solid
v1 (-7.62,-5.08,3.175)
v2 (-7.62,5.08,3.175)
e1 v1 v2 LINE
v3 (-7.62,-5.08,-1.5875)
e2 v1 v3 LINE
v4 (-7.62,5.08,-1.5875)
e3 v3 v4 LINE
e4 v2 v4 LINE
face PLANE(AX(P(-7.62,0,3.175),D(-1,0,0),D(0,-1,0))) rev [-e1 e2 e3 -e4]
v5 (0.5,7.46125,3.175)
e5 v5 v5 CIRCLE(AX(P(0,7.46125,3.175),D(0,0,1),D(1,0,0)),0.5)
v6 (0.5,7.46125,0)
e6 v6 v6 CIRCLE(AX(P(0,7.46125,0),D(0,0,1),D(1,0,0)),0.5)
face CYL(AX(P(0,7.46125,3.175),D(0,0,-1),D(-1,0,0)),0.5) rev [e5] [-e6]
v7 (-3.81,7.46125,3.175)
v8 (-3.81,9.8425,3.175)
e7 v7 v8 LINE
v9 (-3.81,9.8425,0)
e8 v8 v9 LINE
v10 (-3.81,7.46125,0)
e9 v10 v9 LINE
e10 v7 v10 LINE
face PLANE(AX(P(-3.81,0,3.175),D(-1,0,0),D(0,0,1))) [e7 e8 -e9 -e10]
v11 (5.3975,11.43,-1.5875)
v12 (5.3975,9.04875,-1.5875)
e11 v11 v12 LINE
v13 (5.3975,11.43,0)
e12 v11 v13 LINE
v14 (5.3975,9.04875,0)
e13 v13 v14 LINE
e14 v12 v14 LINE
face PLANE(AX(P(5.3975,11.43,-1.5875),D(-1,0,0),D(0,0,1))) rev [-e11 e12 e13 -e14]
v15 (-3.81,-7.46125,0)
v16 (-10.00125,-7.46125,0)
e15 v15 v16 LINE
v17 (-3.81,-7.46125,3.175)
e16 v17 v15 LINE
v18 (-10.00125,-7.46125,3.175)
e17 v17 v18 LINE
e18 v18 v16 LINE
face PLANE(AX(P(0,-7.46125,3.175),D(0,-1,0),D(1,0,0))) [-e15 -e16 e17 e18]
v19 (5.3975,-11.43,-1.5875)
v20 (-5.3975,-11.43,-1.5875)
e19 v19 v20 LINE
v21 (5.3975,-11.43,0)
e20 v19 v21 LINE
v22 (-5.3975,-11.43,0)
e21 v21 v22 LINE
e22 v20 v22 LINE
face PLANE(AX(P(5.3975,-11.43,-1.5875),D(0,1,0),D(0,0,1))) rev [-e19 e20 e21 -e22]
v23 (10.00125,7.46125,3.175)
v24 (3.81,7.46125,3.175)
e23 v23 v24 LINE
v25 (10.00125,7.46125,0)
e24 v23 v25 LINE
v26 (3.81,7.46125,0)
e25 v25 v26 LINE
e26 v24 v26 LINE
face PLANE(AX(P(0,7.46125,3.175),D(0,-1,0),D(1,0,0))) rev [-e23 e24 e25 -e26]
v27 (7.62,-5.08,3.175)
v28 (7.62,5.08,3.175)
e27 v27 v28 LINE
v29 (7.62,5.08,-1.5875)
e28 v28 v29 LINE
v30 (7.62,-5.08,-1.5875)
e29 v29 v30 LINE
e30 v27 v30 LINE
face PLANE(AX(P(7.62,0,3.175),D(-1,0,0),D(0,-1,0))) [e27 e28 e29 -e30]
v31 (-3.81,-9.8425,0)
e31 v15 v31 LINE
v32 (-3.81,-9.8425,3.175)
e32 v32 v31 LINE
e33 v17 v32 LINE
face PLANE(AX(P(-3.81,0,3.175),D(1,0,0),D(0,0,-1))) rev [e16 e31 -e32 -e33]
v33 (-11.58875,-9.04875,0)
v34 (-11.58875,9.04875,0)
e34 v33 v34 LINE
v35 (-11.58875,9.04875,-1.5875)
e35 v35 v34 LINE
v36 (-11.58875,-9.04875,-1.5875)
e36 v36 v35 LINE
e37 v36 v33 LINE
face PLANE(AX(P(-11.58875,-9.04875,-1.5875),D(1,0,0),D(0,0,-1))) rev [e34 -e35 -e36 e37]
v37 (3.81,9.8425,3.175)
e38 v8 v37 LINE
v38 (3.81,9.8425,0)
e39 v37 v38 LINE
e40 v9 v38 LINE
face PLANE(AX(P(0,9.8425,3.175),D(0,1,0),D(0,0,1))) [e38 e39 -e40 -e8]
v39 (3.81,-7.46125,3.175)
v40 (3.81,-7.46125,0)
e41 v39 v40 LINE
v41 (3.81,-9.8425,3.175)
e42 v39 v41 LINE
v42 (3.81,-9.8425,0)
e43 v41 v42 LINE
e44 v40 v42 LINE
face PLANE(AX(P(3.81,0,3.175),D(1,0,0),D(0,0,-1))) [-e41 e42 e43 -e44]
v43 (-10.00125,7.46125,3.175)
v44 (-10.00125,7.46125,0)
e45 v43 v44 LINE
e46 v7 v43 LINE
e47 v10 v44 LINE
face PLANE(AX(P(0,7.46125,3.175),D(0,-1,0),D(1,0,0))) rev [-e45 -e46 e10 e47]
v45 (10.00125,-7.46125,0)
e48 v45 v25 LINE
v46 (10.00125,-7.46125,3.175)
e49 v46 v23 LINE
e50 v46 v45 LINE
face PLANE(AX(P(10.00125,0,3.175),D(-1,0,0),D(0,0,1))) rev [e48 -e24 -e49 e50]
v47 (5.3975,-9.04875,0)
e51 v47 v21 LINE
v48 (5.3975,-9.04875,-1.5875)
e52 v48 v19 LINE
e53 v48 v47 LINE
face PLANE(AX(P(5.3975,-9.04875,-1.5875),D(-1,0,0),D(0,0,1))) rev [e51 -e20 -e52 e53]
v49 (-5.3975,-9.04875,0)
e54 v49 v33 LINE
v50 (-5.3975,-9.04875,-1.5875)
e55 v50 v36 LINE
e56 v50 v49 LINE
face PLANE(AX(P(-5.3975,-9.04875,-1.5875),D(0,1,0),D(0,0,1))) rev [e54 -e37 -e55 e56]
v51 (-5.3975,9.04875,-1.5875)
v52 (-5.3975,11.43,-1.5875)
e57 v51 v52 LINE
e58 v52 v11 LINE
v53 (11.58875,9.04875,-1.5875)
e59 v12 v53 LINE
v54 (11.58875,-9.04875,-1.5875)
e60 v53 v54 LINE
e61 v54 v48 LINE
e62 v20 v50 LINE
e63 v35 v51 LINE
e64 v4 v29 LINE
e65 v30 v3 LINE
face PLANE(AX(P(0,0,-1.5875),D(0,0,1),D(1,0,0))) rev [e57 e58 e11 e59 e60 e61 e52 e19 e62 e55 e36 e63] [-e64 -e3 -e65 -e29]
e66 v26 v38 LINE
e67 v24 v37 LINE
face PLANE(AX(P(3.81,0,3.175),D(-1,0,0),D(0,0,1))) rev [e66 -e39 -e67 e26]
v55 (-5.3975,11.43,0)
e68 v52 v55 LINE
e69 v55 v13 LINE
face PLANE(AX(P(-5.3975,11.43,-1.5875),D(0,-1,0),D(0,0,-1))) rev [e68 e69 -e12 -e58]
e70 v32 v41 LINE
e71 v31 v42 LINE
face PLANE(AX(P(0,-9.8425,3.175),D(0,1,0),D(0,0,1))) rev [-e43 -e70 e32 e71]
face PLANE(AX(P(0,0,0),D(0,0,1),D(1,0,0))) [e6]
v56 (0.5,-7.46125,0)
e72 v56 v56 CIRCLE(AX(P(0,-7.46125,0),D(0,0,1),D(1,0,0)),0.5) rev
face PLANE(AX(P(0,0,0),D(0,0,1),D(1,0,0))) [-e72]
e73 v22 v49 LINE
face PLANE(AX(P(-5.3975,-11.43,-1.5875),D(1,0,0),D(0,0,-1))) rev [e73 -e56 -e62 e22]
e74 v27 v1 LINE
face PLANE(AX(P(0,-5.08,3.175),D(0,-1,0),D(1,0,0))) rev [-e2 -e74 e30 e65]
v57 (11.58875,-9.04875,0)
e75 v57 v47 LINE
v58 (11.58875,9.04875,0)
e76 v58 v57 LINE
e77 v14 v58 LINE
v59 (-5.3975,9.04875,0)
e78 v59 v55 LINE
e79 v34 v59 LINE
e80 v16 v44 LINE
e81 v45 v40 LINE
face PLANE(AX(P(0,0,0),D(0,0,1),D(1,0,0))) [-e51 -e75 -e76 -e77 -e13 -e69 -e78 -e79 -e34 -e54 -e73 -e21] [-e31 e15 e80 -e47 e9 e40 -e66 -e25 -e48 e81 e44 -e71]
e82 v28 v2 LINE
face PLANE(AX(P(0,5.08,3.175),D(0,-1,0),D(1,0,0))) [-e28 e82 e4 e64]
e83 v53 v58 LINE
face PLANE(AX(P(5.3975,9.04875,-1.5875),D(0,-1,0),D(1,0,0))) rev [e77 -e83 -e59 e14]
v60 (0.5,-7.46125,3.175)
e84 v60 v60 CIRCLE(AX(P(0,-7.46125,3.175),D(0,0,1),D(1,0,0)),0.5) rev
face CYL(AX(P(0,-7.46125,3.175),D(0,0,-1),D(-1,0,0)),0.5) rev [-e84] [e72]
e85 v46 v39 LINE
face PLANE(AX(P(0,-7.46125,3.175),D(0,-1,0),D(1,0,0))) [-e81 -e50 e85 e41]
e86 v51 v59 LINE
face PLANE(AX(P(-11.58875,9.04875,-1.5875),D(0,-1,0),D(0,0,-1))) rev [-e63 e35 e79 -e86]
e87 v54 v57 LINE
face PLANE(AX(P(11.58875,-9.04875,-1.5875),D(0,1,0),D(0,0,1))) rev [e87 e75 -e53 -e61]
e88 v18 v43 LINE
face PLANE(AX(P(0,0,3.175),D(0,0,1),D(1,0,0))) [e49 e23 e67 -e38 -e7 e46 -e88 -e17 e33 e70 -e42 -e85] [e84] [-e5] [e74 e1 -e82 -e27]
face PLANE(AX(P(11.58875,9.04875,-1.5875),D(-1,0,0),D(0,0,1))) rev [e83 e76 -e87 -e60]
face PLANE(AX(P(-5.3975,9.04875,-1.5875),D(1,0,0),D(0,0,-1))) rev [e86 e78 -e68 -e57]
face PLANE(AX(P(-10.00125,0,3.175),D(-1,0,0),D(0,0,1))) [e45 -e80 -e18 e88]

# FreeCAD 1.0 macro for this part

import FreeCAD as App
import Part
import Sketcher
Q = App.Units.Quantity

doc = App.newDocument("Part")
params = doc.addObject("Spreadsheet::Sheet", "Params")
for row, (alias, value) in enumerate([
    ("sketch1_width", "0.3 in"),
    ("sketch1_width2", "0.6 in"),
    ("sketch1_height", "0.4 in"),
    ("sketch1_height2", "0.09375 in"),
    ("pad1_length", "0.125 in"),
    ("sketch2_width", "0.6 in"),
    ("sketch2_height", "0.4 in"),
    ("sketch2_width2", "0.425 in"),
    ("sketch2_height2", "0.09375 in"),
    ("pad2_length", "0.0625 in"),
], start=1):
    params.set(f"A{row}", alias)
    params.set(f"B{row}", "=" + value)
    params.setAlias(f"B{row}", alias)

body = doc.addObject("PartDesign::Body", "Body")

# Sketch on XY plane
sketch1 = body.newObject("Sketcher::SketchObject", "Sketch")
sketch1.AttachmentSupport = (doc.getObject("XY_Plane"), [""])
sketch1.MapMode = "FlatFace"
sketch1.addGeometry([
    Part.LineSegment(App.Vector(3.8, -7.5, 0), App.Vector(10, -7.5, 0)),  # 0
    Part.LineSegment(App.Vector(10, -7.5, 0), App.Vector(10, 7.5, 0)),  # 1
    Part.LineSegment(App.Vector(10, 7.5, 0), App.Vector(3.8, 7.5, 0)),  # 2
    Part.LineSegment(App.Vector(3.8, 7.5, 0), App.Vector(3.8, 9.8, 0)),  # 3
    Part.LineSegment(App.Vector(3.8, 9.8, 0), App.Vector(-3.8, 9.8, 0)),  # 4
    Part.LineSegment(App.Vector(-3.8, 9.8, 0), App.Vector(-3.8, 7.5, 0)),  # 5
    Part.LineSegment(App.Vector(-3.8, 7.5, 0), App.Vector(-10, 7.5, 0)),  # 6
    Part.LineSegment(App.Vector(-10, 7.5, 0), App.Vector(-10, -7.5, 0)),  # 7
    Part.LineSegment(App.Vector(-10, -7.5, 0), App.Vector(-3.8, -7.5, 0)),  # 8
    Part.LineSegment(App.Vector(-3.8, -7.5, 0), App.Vector(-3.8, -9.8, 0)),  # 9
    Part.LineSegment(App.Vector(-3.8, -9.8, 0), App.Vector(3.8, -9.8, 0)),  # 10
    Part.LineSegment(App.Vector(3.8, -9.8, 0), App.Vector(3.8, -7.5, 0)),  # 11
    Part.Circle(App.Vector(0, -7.5, 0), App.Vector(0, 0, 1), 0.5),  # 12
    Part.LineSegment(App.Vector(7.6, -5.1, 0), App.Vector(-7.6, -5.1, 0)),  # 13
    Part.LineSegment(App.Vector(-7.6, -5.1, 0), App.Vector(-7.6, 5.1, 0)),  # 14
    Part.LineSegment(App.Vector(-7.6, 5.1, 0), App.Vector(7.6, 5.1, 0)),  # 15
    Part.LineSegment(App.Vector(7.6, 5.1, 0), App.Vector(7.6, -5.1, 0)),  # 16
    Part.Circle(App.Vector(0, 7.5, 0), App.Vector(0, 0, 1), 0.5),  # 17
], False)
sketch1.addConstraint([
    Sketcher.Constraint("Coincident", 0, 2, 1, 1),
    Sketcher.Constraint("Coincident", 1, 2, 2, 1),
    Sketcher.Constraint("Coincident", 2, 2, 3, 1),
    Sketcher.Constraint("Coincident", 3, 2, 4, 1),
    Sketcher.Constraint("Coincident", 4, 2, 5, 1),
    Sketcher.Constraint("Coincident", 5, 2, 6, 1),
    Sketcher.Constraint("Coincident", 6, 2, 7, 1),
    Sketcher.Constraint("Coincident", 7, 2, 8, 1),
    Sketcher.Constraint("Coincident", 8, 2, 9, 1),
    Sketcher.Constraint("Coincident", 9, 2, 10, 1),
    Sketcher.Constraint("Coincident", 10, 2, 11, 1),
    Sketcher.Constraint("Coincident", 11, 2, 0, 1),
    Sketcher.Constraint("Coincident", 13, 2, 14, 1),
    Sketcher.Constraint("Coincident", 14, 2, 15, 1),
    Sketcher.Constraint("Coincident", 15, 2, 16, 1),
    Sketcher.Constraint("Coincident", 16, 2, 13, 1),
    Sketcher.Constraint("Horizontal", 0),
    Sketcher.Constraint("Vertical", 1),
    Sketcher.Constraint("Horizontal", 2),
    Sketcher.Constraint("Vertical", 3),
    Sketcher.Constraint("Horizontal", 4),
    Sketcher.Constraint("Vertical", 5),
    Sketcher.Constraint("Horizontal", 6),
    Sketcher.Constraint("Vertical", 7),
    Sketcher.Constraint("Horizontal", 8),
    Sketcher.Constraint("Vertical", 9),
    Sketcher.Constraint("Horizontal", 10),
    Sketcher.Constraint("Vertical", 11),
    Sketcher.Constraint("Horizontal", 13),
    Sketcher.Constraint("Vertical", 14),
    Sketcher.Constraint("Horizontal", 15),
    Sketcher.Constraint("Vertical", 16),
    Sketcher.Constraint("Equal", 12, 17),
    Sketcher.Constraint("Symmetric", 12, 3, 17, 3, -1, 1),
    Sketcher.Constraint("Symmetric", 0, 2, 6, 2, -1, 1),
    Sketcher.Constraint("Symmetric", 2, 2, 8, 2, -1, 1),
    Sketcher.Constraint("Symmetric", 4, 2, 10, 2, -1, 1),
    Sketcher.Constraint("Symmetric", 13, 2, 15, 2, -1, 1),
    Sketcher.Constraint("Symmetric", 2, 2, 5, 2, -2),
    Sketcher.Constraint("PointOnObject", 12, 3, -2),
    Sketcher.Constraint("Horizontal", 12, 3, 0, 2),
    Sketcher.Constraint("DistanceX", 4, 2, 4, 1, Q("0.3 in")),
    Sketcher.Constraint("DistanceX", 13, 2, 13, 1, Q("0.6 in")),
    Sketcher.Constraint("DistanceY", 14, 1, 14, 2, Q("0.4 in")),
    Sketcher.Constraint("Diameter", 12, Q("1 mm")),
    Sketcher.Constraint("DistanceY", 3, 1, 3, 2, Q("0.09375 in")),
    Sketcher.Constraint("DistanceY", 1, 1, 1, 2, Q("0.5875 in")),
    Sketcher.Constraint("DistanceX", 7, 2, 13, 2, Q("0.09375 in")),
])
sketch1.setExpression("Constraints[41]", "Params.sketch1_width")
sketch1.setExpression("Constraints[42]", "Params.sketch1_width2")
sketch1.setExpression("Constraints[43]", "Params.sketch1_height")
sketch1.setExpression("Constraints[45]", "Params.sketch1_height2")
pad1 = body.newObject("PartDesign::Pad", "Pad")
pad1.Profile = sketch1
pad1.setExpression("Length", "Params.pad1_length")

# Sketch on XY plane
sketch2 = body.newObject("Sketcher::SketchObject", "Sketch001")
sketch2.AttachmentSupport = (doc.getObject("XY_Plane"), [""])
sketch2.MapMode = "FlatFace"
sketch2.addGeometry([
    Part.LineSegment(App.Vector(-5.4, -9, 0), App.Vector(-11.6, -9, 0)),  # 0
    Part.LineSegment(App.Vector(-11.6, -9, 0), App.Vector(-11.6, 9, 0)),  # 1
    Part.LineSegment(App.Vector(-11.6, 9, 0), App.Vector(-5.4, 9, 0)),  # 2
    Part.LineSegment(App.Vector(-5.4, 9, 0), App.Vector(-5.4, 11.4, 0)),  # 3
    Part.LineSegment(App.Vector(-5.4, 11.4, 0), App.Vector(5.4, 11.4, 0)),  # 4
    Part.LineSegment(App.Vector(5.4, 11.4, 0), App.Vector(5.4, 9, 0)),  # 5
    Part.LineSegment(App.Vector(5.4, 9, 0), App.Vector(11.6, 9, 0)),  # 6
    Part.LineSegment(App.Vector(11.6, 9, 0), App.Vector(11.6, -9, 0)),  # 7
    Part.LineSegment(App.Vector(11.6, -9, 0), App.Vector(5.4, -9, 0)),  # 8
    Part.LineSegment(App.Vector(5.4, -9, 0), App.Vector(5.4, -11.4, 0)),  # 9
    Part.LineSegment(App.Vector(5.4, -11.4, 0), App.Vector(-5.4, -11.4, 0)),  # 10
    Part.LineSegment(App.Vector(-5.4, -11.4, 0), App.Vector(-5.4, -9, 0)),  # 11
    Part.LineSegment(App.Vector(-7.6, -5.1, 0), App.Vector(7.6, -5.1, 0)),  # 12
    Part.LineSegment(App.Vector(7.6, -5.1, 0), App.Vector(7.6, 5.1, 0)),  # 13
    Part.LineSegment(App.Vector(7.6, 5.1, 0), App.Vector(-7.6, 5.1, 0)),  # 14
    Part.LineSegment(App.Vector(-7.6, 5.1, 0), App.Vector(-7.6, -5.1, 0)),  # 15
], False)
sketch2.addConstraint([
    Sketcher.Constraint("Coincident", 0, 2, 1, 1),
    Sketcher.Constraint("Coincident", 1, 2, 2, 1),
    Sketcher.Constraint("Coincident", 2, 2, 3, 1),
    Sketcher.Constraint("Coincident", 3, 2, 4, 1),
    Sketcher.Constraint("Coincident", 4, 2, 5, 1),
    Sketcher.Constraint("Coincident", 5, 2, 6, 1),
    Sketcher.Constraint("Coincident", 6, 2, 7, 1),
    Sketcher.Constraint("Coincident", 7, 2, 8, 1),
    Sketcher.Constraint("Coincident", 8, 2, 9, 1),
    Sketcher.Constraint("Coincident", 9, 2, 10, 1),
    Sketcher.Constraint("Coincident", 10, 2, 11, 1),
    Sketcher.Constraint("Coincident", 11, 2, 0, 1),
    Sketcher.Constraint("Coincident", 12, 2, 13, 1),
    Sketcher.Constraint("Coincident", 13, 2, 14, 1),
    Sketcher.Constraint("Coincident", 14, 2, 15, 1),
    Sketcher.Constraint("Coincident", 15, 2, 12, 1),
    Sketcher.Constraint("Horizontal", 0),
    Sketcher.Constraint("Vertical", 1),
    Sketcher.Constraint("Horizontal", 2),
    Sketcher.Constraint("Vertical", 3),
    Sketcher.Constraint("Horizontal", 4),
    Sketcher.Constraint("Vertical", 5),
    Sketcher.Constraint("Horizontal", 6),
    Sketcher.Constraint("Vertical", 7),
    Sketcher.Constraint("Horizontal", 8),
    Sketcher.Constraint("Vertical", 9),
    Sketcher.Constraint("Horizontal", 10),
    Sketcher.Constraint("Vertical", 11),
    Sketcher.Constraint("Horizontal", 12),
    Sketcher.Constraint("Vertical", 13),
    Sketcher.Constraint("Horizontal", 14),
    Sketcher.Constraint("Vertical", 15),
    Sketcher.Constraint("Symmetric", 0, 2, 6, 2, -1, 1),
    Sketcher.Constraint("Symmetric", 2, 2, 8, 2, -1, 1),
    Sketcher.Constraint("Symmetric", 4, 2, 10, 2, -1, 1),
    Sketcher.Constraint("Symmetric", 12, 2, 14, 2, -1, 1),
    Sketcher.Constraint("Symmetric", 2, 2, 5, 2, -2),
    Sketcher.Constraint("DistanceX", 12, 1, 12, 2, Q("0.6 in")),
    Sketcher.Constraint("DistanceY", 13, 1, 13, 2, Q("0.4 in")),
    Sketcher.Constraint("DistanceX", 4, 1, 4, 2, Q("0.425 in")),
    Sketcher.Constraint("DistanceY", 3, 1, 3, 2, Q("0.09375 in")),
    Sketcher.Constraint("DistanceY", -1, 1, 3, 2, Q("0.45 in")),
    Sketcher.Constraint("DistanceX", 12, 2, 7, 2, Q("0.15625 in")),
])
sketch2.setExpression("Constraints[37]", "Params.sketch2_width")
sketch2.setExpression("Constraints[38]", "Params.sketch2_height")
sketch2.setExpression("Constraints[39]", "Params.sketch2_width2")
sketch2.setExpression("Constraints[40]", "Params.sketch2_height2")
pad2 = body.newObject("PartDesign::Pad", "Pad001")
pad2.Profile = sketch2
pad2.setExpression("Length", "Params.pad2_length")
pad2.Reversed = True

doc.recompute()
